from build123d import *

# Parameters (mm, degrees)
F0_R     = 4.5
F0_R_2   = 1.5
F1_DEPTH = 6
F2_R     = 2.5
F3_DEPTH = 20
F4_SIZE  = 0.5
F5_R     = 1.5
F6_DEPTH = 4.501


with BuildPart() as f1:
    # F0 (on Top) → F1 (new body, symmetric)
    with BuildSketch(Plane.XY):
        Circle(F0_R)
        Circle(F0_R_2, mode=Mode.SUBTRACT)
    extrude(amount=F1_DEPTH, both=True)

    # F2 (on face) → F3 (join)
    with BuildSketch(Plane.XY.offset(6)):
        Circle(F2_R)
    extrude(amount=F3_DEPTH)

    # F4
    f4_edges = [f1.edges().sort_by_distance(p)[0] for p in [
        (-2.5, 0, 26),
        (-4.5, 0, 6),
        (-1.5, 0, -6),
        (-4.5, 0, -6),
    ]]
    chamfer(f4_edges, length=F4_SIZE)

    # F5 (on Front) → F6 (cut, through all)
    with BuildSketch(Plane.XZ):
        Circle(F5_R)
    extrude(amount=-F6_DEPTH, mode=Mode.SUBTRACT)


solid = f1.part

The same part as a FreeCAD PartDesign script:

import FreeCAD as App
import Part
import Sketcher


def edges_at(feature, points):
    """Names of the edges that pass closest to the given points."""
    edges = feature.Shape.Edges
    near = lambda p: min(range(len(edges)), key=lambda i: edges[i].distToShape(Part.Vertex(*p))[0])
    return sorted({f"Edge{near(p) + 1}" for p in points})

doc = App.newDocument("Part")
body = doc.addObject("PartDesign::Body", "Body")

# Sketch on XY plane
sketch1 = body.newObject("Sketcher::SketchObject", "Sketch")
sketch1.AttachmentSupport = (doc.getObject("XY_Plane"), [""])
sketch1.MapMode = "FlatFace"
sketch1.addGeometry([
    Part.Circle(App.Vector(0, 0, 0), App.Vector(0, 0, 1), 4.5),
    Part.Circle(App.Vector(0, 0, 0), App.Vector(0, 0, 1), 1.5),
], False)
sketch1.addConstraint([
    Sketcher.Constraint("Coincident", 0, 3, -1, 1),
    Sketcher.Constraint("Coincident", 1, 3, -1, 1),
    Sketcher.Constraint("Diameter", 0, 9.0),
    Sketcher.Constraint("Diameter", 1, 3.0),
])
pad1 = body.newObject("PartDesign::Pad", "Pad")
pad1.Profile = sketch1
pad1.Length = 12
pad1.Midplane = True

# Sketch on XY plane
sketch2 = body.newObject("Sketcher::SketchObject", "Sketch001")
sketch2.AttachmentSupport = (doc.getObject("XY_Plane"), [""])
sketch2.MapMode = "FlatFace"
sketch2.AttachmentOffset = App.Placement(App.Vector(0, 0, 6), App.Rotation())
sketch2.addGeometry(Part.Circle(App.Vector(0, 0, 0), App.Vector(0, 0, 1), 2.5), False)
sketch2.addConstraint([
    Sketcher.Constraint("Coincident", 0, 3, -1, 1),
    Sketcher.Constraint("Diameter", 0, 5.0),
])
pad2 = body.newObject("PartDesign::Pad", "Pad001")
pad2.Profile = sketch2
pad2.Length = 20
doc.recompute()

chamfer = body.newObject("PartDesign::Chamfer", "Chamfer")
chamfer.Base = (pad2, edges_at(pad2, [
    (-2.5, 0, 26),
    (-4.5, 0, 6),
    (-1.5, 0, -6),
    (-4.5, 0, -6),
]))
chamfer.Size = 0.5

# Sketch on XZ plane
sketch3 = body.newObject("Sketcher::SketchObject", "Sketch002")
sketch3.AttachmentSupport = (doc.getObject("XZ_Plane"), [""])
sketch3.MapMode = "FlatFace"
sketch3.addGeometry(Part.Circle(App.Vector(0, 0, 0), App.Vector(0, 0, 1), 1.5), False)
sketch3.addConstraint([
    Sketcher.Constraint("Coincident", 0, 3, -1, 1),
    Sketcher.Constraint("Diameter", 0, 3.0),
])
pocket1 = body.newObject("PartDesign::Pocket", "Pocket")
pocket1.Profile = sketch3
pocket1.Type = "ThroughAll"

doc.recompute()
